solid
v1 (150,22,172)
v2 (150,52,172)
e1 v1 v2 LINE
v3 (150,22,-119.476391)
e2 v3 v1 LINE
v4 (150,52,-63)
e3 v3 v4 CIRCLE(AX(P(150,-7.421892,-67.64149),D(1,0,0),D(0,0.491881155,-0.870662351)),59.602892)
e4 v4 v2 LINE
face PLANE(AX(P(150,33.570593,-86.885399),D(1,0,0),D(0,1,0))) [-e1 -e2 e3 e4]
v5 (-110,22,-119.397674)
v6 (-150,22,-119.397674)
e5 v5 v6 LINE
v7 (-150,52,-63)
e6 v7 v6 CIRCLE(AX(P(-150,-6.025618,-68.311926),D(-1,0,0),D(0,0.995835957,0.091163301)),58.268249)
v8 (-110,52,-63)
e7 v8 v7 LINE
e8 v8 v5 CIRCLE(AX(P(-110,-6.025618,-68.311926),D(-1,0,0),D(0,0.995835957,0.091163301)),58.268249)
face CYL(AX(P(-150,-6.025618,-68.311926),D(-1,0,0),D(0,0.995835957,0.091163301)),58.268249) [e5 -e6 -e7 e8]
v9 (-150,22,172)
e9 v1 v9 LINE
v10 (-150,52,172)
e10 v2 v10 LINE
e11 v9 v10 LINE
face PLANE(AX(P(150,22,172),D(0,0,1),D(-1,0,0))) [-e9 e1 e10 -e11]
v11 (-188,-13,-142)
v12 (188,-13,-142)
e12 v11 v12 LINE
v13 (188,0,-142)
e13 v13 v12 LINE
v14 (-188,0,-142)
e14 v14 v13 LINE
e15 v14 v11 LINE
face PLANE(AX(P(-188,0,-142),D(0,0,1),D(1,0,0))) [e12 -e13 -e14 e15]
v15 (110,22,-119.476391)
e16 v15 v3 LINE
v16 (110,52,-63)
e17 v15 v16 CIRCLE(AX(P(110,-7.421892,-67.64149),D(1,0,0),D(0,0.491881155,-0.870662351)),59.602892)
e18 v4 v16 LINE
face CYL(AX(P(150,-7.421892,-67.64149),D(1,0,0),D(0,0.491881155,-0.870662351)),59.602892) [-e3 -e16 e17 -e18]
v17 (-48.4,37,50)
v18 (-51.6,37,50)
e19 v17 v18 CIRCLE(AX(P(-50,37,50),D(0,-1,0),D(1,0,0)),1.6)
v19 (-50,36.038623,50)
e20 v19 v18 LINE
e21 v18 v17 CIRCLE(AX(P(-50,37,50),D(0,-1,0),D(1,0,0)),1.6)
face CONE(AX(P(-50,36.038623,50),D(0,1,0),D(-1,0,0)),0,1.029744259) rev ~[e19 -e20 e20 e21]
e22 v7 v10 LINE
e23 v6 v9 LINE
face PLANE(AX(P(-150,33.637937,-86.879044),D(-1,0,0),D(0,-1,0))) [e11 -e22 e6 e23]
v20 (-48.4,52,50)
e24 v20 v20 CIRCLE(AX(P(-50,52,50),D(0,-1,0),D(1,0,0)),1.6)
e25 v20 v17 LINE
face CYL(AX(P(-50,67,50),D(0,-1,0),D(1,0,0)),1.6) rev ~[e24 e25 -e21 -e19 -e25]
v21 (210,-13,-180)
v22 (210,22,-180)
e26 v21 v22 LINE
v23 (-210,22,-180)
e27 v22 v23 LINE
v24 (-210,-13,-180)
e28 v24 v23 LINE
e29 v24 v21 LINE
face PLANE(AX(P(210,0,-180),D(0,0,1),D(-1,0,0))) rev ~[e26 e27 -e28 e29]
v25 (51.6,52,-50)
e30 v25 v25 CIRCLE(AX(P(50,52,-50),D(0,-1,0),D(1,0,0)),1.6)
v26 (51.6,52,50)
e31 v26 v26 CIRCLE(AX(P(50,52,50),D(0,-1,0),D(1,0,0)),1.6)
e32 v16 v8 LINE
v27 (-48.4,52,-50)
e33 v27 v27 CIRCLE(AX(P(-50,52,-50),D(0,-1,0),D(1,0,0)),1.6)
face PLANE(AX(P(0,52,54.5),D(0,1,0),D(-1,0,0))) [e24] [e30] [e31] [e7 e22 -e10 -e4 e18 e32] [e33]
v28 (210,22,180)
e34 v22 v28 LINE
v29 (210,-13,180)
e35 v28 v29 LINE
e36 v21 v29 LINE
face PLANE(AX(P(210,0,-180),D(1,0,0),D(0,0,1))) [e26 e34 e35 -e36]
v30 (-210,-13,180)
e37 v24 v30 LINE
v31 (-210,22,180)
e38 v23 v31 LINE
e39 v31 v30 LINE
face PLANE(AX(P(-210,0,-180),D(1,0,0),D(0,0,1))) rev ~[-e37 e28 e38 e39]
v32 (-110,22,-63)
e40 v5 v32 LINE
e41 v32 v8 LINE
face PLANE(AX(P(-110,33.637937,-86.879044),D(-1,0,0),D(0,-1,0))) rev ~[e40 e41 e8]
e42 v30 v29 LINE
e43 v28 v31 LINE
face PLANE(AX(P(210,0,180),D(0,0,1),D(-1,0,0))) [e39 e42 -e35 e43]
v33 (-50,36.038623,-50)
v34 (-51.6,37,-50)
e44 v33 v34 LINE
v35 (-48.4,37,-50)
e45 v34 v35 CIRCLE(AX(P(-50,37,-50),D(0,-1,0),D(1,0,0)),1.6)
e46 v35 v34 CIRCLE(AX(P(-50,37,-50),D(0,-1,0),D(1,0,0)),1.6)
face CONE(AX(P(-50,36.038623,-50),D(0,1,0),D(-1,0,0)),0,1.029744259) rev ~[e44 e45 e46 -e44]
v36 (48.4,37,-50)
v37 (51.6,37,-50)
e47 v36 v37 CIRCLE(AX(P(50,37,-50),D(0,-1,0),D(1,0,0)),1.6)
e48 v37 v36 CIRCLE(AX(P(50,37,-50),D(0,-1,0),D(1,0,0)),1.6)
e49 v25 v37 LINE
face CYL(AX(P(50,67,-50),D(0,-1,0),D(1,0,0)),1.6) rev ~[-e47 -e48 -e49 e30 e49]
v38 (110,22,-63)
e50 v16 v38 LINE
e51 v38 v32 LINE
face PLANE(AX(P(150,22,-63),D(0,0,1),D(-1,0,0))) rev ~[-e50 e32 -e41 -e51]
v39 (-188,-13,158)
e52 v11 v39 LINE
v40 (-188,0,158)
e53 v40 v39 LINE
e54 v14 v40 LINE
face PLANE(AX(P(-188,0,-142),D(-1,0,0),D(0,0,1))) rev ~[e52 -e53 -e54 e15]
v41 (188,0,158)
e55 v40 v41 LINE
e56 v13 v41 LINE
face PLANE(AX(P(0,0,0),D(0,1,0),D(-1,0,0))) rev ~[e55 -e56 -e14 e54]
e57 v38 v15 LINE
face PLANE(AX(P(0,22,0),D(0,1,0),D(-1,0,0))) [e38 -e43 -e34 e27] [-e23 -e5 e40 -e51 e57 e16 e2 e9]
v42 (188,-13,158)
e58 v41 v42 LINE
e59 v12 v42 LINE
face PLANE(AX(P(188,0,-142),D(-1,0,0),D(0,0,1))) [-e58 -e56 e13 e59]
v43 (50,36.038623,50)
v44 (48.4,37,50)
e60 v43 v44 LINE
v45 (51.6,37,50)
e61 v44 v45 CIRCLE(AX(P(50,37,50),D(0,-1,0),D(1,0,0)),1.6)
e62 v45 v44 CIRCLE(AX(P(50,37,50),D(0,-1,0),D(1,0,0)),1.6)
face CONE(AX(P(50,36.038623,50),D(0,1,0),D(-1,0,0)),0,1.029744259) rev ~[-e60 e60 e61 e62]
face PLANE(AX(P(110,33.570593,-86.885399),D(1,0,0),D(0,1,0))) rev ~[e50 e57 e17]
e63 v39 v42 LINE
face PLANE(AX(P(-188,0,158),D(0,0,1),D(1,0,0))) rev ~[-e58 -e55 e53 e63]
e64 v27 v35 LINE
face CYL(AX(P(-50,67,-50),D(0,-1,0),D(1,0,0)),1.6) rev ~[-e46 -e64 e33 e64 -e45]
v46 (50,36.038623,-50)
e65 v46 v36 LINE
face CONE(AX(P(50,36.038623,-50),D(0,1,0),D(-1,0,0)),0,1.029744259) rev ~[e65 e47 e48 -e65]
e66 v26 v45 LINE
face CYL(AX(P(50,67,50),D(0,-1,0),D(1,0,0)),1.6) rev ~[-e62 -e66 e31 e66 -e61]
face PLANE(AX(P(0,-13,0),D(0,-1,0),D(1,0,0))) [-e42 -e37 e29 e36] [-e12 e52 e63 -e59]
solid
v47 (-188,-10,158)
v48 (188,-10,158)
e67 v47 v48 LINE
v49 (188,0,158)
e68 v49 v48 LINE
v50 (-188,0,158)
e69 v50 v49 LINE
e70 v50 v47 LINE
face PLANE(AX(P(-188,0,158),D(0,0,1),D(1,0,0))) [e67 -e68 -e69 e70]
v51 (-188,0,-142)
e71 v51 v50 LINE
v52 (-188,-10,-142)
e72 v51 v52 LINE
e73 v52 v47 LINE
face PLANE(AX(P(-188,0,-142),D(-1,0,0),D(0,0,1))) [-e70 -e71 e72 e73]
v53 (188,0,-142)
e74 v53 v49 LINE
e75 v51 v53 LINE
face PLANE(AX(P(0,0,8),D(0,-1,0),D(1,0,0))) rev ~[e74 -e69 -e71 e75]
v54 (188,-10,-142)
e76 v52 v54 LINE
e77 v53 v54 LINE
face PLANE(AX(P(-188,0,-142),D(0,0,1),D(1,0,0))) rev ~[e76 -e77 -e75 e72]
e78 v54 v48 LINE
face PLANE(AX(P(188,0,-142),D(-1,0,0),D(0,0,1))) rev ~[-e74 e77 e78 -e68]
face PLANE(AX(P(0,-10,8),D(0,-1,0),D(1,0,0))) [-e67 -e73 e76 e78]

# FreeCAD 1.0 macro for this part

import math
import FreeCAD as App
import Part
import Sketcher

V = App.Vector
Q = App.Units.Quantity


def add_polygon(sketch, points):
    """Adds a closed chain of lines whose ends are joined by coincident constraints."""
    first, n = sketch.GeometryCount, len(points)
    for a, b in zip(points, points[1:] + points[:1]):
        sketch.addGeometry(Part.LineSegment(App.Vector(*a, 0), App.Vector(*b, 0)), False)
    for i in range(n):
        sketch.addConstraint(Sketcher.Constraint("Coincident", first + i, 2, first + (i + 1) % n, 1))

doc = App.newDocument("Part")
body = doc.addObject("PartDesign::Body", "Body")

# Sketch on XZ plane
sketch1 = body.newObject("Sketcher::SketchObject", "Sketch")
sketch1.AttachmentSupport = (doc.getObject("XZ_Plane"), [""])
sketch1.MapMode = "FlatFace"
add_polygon(sketch1, [(-210, 180), (-210, -180), (210, -180), (210, 180)])  # lines 0-3
add_polygon(sketch1, [(188, -142), (-188, -142), (-188, 158), (188, 158)])  # lines 4-7
sketch1.addConstraint([
    Sketcher.Constraint("Vertical", 0),
    Sketcher.Constraint("Horizontal", 1),
    Sketcher.Constraint("Vertical", 2),
    Sketcher.Constraint("Horizontal", 3),
    Sketcher.Constraint("Horizontal", 4),
    Sketcher.Constraint("Vertical", 5),
    Sketcher.Constraint("Horizontal", 6),
    Sketcher.Constraint("Vertical", 7),
    Sketcher.Constraint("Symmetric", 0, 2, 2, 2, -1, 1),
    Sketcher.Constraint("DistanceX", 1, 1, 1, 2, Q("420 mm")),
    Sketcher.Constraint("DistanceX", 4, 2, 4, 1, Q("376 mm")),
    Sketcher.Constraint("DistanceY", 0, 2, 0, 1, Q("360 mm")),
    Sketcher.Constraint("DistanceY", 5, 1, 5, 2, Q("300 mm")),
    Sketcher.Constraint("DistanceX", 4, 2, -1, 1, Q("188 mm")),
    Sketcher.Constraint("DistanceY", 4, 2, -1, 1, Q("142 mm")),
])
pad1 = body.newObject("PartDesign::Pad", "Pad")
pad1.Profile = sketch1
pad1.Length = 13

# Sketch on XZ plane
sketch2 = body.newObject("Sketcher::SketchObject", "Sketch001")
sketch2.AttachmentSupport = (doc.getObject("XZ_Plane"), [""])
sketch2.MapMode = "FlatFace"
add_polygon(sketch2, [(210, 180), (210, -180), (-210, -180), (-210, 180)])  # lines 0-3
sketch2.addConstraint([
    Sketcher.Constraint("Vertical", 0),
    Sketcher.Constraint("Horizontal", 1),
    Sketcher.Constraint("Vertical", 2),
    Sketcher.Constraint("Horizontal", 3),
    Sketcher.Constraint("Symmetric", 0, 2, 2, 2, -1, 1),
    Sketcher.Constraint("DistanceX", 1, 2, 1, 1, Q("420 mm")),
    Sketcher.Constraint("DistanceY", 0, 2, 0, 1, Q("360 mm")),
])
pad2 = body.newObject("PartDesign::Pad", "Pad001")
pad2.Profile = sketch2
pad2.Length = 22
pad2.Reversed = True

# Sketch on XZ plane
sketch3 = body.newObject("Sketcher::SketchObject", "Sketch002")
sketch3.AttachmentSupport = (doc.getObject("XZ_Plane"), [""])
sketch3.MapMode = "FlatFace"
sketch3.AttachmentOffset = App.Placement(V(0, 0, -22), App.Rotation())
add_polygon(sketch3, [(150, 172), (150, -63), (-150, -63), (-150, 172)])  # lines 0-3
sketch3.addConstraint([
    Sketcher.Constraint("Vertical", 0),
    Sketcher.Constraint("Horizontal", 1),
    Sketcher.Constraint("Vertical", 2),
    Sketcher.Constraint("Horizontal", 3),
    Sketcher.Constraint("DistanceX", 1, 2, 1, 1, Q("300 mm")),
    Sketcher.Constraint("DistanceY", 0, 2, 0, 1, Q("235 mm")),
    Sketcher.Constraint("DistanceX", -1, 1, 0, 2, Q("150 mm")),
    Sketcher.Constraint("DistanceY", 0, 2, -1, 1, Q("63 mm")),
])
pad3 = body.newObject("PartDesign::Pad", "Pad002")
pad3.Profile = sketch3
pad3.Length = 30
pad3.Reversed = True

# Sketch on YZ plane
sketch4 = body.newObject("Sketcher::SketchObject", "Sketch003")
sketch4.AttachmentSupport = (doc.getObject("YZ_Plane"), [""])
sketch4.MapMode = "FlatFace"
sketch4.AttachmentOffset = App.Placement(V(0, 0, 150), App.Rotation())
sketch4.addGeometry([
    Part.LineSegment(V(22, -63, 0), V(22, -120, 0)),
    Part.ArcOfCircle(Part.Circle(V(-7, -68, 0), V(0, 0, 1), 60), math.radians(-61), math.radians(4)),
    Part.LineSegment(V(52, -63, 0), V(22, -63, 0)),
], False)
sketch4.addConstraint([
    Sketcher.Constraint("Coincident", 0, 2, 1, 1),
    Sketcher.Constraint("Coincident", 1, 2, 2, 1),
    Sketcher.Constraint("Coincident", 2, 2, 0, 1),
    Sketcher.Constraint("Horizontal", 2),
    Sketcher.Constraint("DistanceX", 2, 2, 2, 1, Q("30 mm")),
    Sketcher.Constraint("DistanceX", -1, 1, 1, 2, Q("52 mm")),
    Sketcher.Constraint("DistanceY", 1, 2, -1, 1, Q("63 mm")),
    Sketcher.Constraint("Radius", 1, Q("59.602892 mm")),
    Sketcher.Constraint("Distance", 0, Q("56.53558 mm")),
    Sketcher.Constraint("DistanceY", 1, 3, -1, 1, Q("67.64149 mm")),
])
pad4 = body.newObject("PartDesign::Pad", "Pad003")
pad4.Profile = sketch4
pad4.Length = 40
pad4.Reversed = True

# Sketch on YZ plane
sketch5 = body.newObject("Sketcher::SketchObject", "Sketch004")
sketch5.AttachmentSupport = (doc.getObject("YZ_Plane"), [""])
sketch5.MapMode = "FlatFace"
sketch5.AttachmentOffset = App.Placement(V(0, 0, -150), App.Rotation())
sketch5.addGeometry([
    Part.LineSegment(V(22, -63, 0), V(52, -63, 0)),
    Part.ArcOfCircle(Part.Circle(V(-6, -68, 0), V(0, 0, 1), 58), math.radians(-61), math.radians(5)),
    Part.LineSegment(V(22, -119, 0), V(22, -63, 0)),
], False)
sketch5.addConstraint([
    Sketcher.Constraint("Coincident", 0, 2, 1, 2),
    Sketcher.Constraint("Coincident", 1, 1, 2, 1),
    Sketcher.Constraint("Coincident", 2, 2, 0, 1),
    Sketcher.Constraint("Horizontal", 0),
    Sketcher.Constraint("DistanceX", 0, 1, 0, 2, Q("30 mm")),
    Sketcher.Constraint("DistanceX", -1, 1, 0, 2, Q("52 mm")),
    Sketcher.Constraint("DistanceY", 0, 2, -1, 1, Q("63 mm")),
    Sketcher.Constraint("Radius", 1, Q("58.268249 mm")),
    Sketcher.Constraint("DistanceY", 1, 1, 1, 3, Q("51.135119 mm")),
    Sketcher.Constraint("Distance", 2, Q("56.447117 mm")),
])
pad5 = body.newObject("PartDesign::Pad", "Pad004")
pad5.Profile = sketch5
pad5.Length = 40

# Sketch on XZ plane
sketch6 = body.newObject("Sketcher::SketchObject", "Sketch005")
sketch6.AttachmentSupport = (doc.getObject("XZ_Plane"), [""])
sketch6.MapMode = "FlatFace"
sketch6.AttachmentOffset = App.Placement(V(0, 0, -52), App.Rotation())
sketch6.addGeometry([
    Part.Circle(V(50, 50, 0), V(0, 0, 1), 1.6),
    Part.Circle(V(-50, 50, 0), V(0, 0, 1), 1.6),
    Part.Circle(V(-50, -50, 0), V(0, 0, 1), 1.6),
    Part.Circle(V(50, -50, 0), V(0, 0, 1), 1.6),
], False)
sketch6.addConstraint([
    Sketcher.Constraint("Equal", 0, 1),
    Sketcher.Constraint("Equal", 1, 2),
    Sketcher.Constraint("Equal", 2, 3),
    Sketcher.Constraint("Symmetric", 0, 3, 2, 3, -1, 1),
    Sketcher.Constraint("Symmetric", 1, 3, 3, 3, -1, 1),
    Sketcher.Constraint("Symmetric", 0, 3, 1, 3, -2),
    Sketcher.Constraint("Diameter", 0, Q("3.2 mm")),
    Sketcher.Constraint("DistanceX", -1, 1, 0, 3, Q("50 mm")),
    Sketcher.Constraint("DistanceY", -1, 1, 0, 3, Q("50 mm")),
])
doc.recompute()
hole = body.newObject("PartDesign::Hole", "Hole")
hole.Profile = sketch6
hole.ThreadType = "None"
hole.Diameter = 3.2
hole.DepthType = "Dimension"
hole.Depth = 15
hole.DrillPoint = "Angled"
hole.DrillPointAngle = 118
hole.Reversed = True
body2 = doc.addObject("PartDesign::Body", "Body001")

# Sketch on XZ plane
sketch7 = body2.newObject("Sketcher::SketchObject", "Sketch006")
sketch7.AttachmentSupport = (doc.getObject("XZ_Plane001"), [""])
sketch7.MapMode = "FlatFace"
add_polygon(sketch7, [(-188, 158), (-188, -142), (188, -142), (188, 158)])  # lines 0-3
sketch7.addConstraint([
    Sketcher.Constraint("Vertical", 0),
    Sketcher.Constraint("Horizontal", 1),
    Sketcher.Constraint("Vertical", 2),
    Sketcher.Constraint("Horizontal", 3),
    Sketcher.Constraint("DistanceX", 1, 1, 1, 2, Q("376 mm")),
    Sketcher.Constraint("DistanceY", 0, 2, 0, 1, Q("300 mm")),
    Sketcher.Constraint("DistanceX", 0, 2, -1, 1, Q("188 mm")),
    Sketcher.Constraint("DistanceY", 0, 2, -1, 1, Q("142 mm")),
])
pad6 = body2.newObject("PartDesign::Pad", "Pad005")
pad6.Profile = sketch7
pad6.Length = 10

doc.recompute()
